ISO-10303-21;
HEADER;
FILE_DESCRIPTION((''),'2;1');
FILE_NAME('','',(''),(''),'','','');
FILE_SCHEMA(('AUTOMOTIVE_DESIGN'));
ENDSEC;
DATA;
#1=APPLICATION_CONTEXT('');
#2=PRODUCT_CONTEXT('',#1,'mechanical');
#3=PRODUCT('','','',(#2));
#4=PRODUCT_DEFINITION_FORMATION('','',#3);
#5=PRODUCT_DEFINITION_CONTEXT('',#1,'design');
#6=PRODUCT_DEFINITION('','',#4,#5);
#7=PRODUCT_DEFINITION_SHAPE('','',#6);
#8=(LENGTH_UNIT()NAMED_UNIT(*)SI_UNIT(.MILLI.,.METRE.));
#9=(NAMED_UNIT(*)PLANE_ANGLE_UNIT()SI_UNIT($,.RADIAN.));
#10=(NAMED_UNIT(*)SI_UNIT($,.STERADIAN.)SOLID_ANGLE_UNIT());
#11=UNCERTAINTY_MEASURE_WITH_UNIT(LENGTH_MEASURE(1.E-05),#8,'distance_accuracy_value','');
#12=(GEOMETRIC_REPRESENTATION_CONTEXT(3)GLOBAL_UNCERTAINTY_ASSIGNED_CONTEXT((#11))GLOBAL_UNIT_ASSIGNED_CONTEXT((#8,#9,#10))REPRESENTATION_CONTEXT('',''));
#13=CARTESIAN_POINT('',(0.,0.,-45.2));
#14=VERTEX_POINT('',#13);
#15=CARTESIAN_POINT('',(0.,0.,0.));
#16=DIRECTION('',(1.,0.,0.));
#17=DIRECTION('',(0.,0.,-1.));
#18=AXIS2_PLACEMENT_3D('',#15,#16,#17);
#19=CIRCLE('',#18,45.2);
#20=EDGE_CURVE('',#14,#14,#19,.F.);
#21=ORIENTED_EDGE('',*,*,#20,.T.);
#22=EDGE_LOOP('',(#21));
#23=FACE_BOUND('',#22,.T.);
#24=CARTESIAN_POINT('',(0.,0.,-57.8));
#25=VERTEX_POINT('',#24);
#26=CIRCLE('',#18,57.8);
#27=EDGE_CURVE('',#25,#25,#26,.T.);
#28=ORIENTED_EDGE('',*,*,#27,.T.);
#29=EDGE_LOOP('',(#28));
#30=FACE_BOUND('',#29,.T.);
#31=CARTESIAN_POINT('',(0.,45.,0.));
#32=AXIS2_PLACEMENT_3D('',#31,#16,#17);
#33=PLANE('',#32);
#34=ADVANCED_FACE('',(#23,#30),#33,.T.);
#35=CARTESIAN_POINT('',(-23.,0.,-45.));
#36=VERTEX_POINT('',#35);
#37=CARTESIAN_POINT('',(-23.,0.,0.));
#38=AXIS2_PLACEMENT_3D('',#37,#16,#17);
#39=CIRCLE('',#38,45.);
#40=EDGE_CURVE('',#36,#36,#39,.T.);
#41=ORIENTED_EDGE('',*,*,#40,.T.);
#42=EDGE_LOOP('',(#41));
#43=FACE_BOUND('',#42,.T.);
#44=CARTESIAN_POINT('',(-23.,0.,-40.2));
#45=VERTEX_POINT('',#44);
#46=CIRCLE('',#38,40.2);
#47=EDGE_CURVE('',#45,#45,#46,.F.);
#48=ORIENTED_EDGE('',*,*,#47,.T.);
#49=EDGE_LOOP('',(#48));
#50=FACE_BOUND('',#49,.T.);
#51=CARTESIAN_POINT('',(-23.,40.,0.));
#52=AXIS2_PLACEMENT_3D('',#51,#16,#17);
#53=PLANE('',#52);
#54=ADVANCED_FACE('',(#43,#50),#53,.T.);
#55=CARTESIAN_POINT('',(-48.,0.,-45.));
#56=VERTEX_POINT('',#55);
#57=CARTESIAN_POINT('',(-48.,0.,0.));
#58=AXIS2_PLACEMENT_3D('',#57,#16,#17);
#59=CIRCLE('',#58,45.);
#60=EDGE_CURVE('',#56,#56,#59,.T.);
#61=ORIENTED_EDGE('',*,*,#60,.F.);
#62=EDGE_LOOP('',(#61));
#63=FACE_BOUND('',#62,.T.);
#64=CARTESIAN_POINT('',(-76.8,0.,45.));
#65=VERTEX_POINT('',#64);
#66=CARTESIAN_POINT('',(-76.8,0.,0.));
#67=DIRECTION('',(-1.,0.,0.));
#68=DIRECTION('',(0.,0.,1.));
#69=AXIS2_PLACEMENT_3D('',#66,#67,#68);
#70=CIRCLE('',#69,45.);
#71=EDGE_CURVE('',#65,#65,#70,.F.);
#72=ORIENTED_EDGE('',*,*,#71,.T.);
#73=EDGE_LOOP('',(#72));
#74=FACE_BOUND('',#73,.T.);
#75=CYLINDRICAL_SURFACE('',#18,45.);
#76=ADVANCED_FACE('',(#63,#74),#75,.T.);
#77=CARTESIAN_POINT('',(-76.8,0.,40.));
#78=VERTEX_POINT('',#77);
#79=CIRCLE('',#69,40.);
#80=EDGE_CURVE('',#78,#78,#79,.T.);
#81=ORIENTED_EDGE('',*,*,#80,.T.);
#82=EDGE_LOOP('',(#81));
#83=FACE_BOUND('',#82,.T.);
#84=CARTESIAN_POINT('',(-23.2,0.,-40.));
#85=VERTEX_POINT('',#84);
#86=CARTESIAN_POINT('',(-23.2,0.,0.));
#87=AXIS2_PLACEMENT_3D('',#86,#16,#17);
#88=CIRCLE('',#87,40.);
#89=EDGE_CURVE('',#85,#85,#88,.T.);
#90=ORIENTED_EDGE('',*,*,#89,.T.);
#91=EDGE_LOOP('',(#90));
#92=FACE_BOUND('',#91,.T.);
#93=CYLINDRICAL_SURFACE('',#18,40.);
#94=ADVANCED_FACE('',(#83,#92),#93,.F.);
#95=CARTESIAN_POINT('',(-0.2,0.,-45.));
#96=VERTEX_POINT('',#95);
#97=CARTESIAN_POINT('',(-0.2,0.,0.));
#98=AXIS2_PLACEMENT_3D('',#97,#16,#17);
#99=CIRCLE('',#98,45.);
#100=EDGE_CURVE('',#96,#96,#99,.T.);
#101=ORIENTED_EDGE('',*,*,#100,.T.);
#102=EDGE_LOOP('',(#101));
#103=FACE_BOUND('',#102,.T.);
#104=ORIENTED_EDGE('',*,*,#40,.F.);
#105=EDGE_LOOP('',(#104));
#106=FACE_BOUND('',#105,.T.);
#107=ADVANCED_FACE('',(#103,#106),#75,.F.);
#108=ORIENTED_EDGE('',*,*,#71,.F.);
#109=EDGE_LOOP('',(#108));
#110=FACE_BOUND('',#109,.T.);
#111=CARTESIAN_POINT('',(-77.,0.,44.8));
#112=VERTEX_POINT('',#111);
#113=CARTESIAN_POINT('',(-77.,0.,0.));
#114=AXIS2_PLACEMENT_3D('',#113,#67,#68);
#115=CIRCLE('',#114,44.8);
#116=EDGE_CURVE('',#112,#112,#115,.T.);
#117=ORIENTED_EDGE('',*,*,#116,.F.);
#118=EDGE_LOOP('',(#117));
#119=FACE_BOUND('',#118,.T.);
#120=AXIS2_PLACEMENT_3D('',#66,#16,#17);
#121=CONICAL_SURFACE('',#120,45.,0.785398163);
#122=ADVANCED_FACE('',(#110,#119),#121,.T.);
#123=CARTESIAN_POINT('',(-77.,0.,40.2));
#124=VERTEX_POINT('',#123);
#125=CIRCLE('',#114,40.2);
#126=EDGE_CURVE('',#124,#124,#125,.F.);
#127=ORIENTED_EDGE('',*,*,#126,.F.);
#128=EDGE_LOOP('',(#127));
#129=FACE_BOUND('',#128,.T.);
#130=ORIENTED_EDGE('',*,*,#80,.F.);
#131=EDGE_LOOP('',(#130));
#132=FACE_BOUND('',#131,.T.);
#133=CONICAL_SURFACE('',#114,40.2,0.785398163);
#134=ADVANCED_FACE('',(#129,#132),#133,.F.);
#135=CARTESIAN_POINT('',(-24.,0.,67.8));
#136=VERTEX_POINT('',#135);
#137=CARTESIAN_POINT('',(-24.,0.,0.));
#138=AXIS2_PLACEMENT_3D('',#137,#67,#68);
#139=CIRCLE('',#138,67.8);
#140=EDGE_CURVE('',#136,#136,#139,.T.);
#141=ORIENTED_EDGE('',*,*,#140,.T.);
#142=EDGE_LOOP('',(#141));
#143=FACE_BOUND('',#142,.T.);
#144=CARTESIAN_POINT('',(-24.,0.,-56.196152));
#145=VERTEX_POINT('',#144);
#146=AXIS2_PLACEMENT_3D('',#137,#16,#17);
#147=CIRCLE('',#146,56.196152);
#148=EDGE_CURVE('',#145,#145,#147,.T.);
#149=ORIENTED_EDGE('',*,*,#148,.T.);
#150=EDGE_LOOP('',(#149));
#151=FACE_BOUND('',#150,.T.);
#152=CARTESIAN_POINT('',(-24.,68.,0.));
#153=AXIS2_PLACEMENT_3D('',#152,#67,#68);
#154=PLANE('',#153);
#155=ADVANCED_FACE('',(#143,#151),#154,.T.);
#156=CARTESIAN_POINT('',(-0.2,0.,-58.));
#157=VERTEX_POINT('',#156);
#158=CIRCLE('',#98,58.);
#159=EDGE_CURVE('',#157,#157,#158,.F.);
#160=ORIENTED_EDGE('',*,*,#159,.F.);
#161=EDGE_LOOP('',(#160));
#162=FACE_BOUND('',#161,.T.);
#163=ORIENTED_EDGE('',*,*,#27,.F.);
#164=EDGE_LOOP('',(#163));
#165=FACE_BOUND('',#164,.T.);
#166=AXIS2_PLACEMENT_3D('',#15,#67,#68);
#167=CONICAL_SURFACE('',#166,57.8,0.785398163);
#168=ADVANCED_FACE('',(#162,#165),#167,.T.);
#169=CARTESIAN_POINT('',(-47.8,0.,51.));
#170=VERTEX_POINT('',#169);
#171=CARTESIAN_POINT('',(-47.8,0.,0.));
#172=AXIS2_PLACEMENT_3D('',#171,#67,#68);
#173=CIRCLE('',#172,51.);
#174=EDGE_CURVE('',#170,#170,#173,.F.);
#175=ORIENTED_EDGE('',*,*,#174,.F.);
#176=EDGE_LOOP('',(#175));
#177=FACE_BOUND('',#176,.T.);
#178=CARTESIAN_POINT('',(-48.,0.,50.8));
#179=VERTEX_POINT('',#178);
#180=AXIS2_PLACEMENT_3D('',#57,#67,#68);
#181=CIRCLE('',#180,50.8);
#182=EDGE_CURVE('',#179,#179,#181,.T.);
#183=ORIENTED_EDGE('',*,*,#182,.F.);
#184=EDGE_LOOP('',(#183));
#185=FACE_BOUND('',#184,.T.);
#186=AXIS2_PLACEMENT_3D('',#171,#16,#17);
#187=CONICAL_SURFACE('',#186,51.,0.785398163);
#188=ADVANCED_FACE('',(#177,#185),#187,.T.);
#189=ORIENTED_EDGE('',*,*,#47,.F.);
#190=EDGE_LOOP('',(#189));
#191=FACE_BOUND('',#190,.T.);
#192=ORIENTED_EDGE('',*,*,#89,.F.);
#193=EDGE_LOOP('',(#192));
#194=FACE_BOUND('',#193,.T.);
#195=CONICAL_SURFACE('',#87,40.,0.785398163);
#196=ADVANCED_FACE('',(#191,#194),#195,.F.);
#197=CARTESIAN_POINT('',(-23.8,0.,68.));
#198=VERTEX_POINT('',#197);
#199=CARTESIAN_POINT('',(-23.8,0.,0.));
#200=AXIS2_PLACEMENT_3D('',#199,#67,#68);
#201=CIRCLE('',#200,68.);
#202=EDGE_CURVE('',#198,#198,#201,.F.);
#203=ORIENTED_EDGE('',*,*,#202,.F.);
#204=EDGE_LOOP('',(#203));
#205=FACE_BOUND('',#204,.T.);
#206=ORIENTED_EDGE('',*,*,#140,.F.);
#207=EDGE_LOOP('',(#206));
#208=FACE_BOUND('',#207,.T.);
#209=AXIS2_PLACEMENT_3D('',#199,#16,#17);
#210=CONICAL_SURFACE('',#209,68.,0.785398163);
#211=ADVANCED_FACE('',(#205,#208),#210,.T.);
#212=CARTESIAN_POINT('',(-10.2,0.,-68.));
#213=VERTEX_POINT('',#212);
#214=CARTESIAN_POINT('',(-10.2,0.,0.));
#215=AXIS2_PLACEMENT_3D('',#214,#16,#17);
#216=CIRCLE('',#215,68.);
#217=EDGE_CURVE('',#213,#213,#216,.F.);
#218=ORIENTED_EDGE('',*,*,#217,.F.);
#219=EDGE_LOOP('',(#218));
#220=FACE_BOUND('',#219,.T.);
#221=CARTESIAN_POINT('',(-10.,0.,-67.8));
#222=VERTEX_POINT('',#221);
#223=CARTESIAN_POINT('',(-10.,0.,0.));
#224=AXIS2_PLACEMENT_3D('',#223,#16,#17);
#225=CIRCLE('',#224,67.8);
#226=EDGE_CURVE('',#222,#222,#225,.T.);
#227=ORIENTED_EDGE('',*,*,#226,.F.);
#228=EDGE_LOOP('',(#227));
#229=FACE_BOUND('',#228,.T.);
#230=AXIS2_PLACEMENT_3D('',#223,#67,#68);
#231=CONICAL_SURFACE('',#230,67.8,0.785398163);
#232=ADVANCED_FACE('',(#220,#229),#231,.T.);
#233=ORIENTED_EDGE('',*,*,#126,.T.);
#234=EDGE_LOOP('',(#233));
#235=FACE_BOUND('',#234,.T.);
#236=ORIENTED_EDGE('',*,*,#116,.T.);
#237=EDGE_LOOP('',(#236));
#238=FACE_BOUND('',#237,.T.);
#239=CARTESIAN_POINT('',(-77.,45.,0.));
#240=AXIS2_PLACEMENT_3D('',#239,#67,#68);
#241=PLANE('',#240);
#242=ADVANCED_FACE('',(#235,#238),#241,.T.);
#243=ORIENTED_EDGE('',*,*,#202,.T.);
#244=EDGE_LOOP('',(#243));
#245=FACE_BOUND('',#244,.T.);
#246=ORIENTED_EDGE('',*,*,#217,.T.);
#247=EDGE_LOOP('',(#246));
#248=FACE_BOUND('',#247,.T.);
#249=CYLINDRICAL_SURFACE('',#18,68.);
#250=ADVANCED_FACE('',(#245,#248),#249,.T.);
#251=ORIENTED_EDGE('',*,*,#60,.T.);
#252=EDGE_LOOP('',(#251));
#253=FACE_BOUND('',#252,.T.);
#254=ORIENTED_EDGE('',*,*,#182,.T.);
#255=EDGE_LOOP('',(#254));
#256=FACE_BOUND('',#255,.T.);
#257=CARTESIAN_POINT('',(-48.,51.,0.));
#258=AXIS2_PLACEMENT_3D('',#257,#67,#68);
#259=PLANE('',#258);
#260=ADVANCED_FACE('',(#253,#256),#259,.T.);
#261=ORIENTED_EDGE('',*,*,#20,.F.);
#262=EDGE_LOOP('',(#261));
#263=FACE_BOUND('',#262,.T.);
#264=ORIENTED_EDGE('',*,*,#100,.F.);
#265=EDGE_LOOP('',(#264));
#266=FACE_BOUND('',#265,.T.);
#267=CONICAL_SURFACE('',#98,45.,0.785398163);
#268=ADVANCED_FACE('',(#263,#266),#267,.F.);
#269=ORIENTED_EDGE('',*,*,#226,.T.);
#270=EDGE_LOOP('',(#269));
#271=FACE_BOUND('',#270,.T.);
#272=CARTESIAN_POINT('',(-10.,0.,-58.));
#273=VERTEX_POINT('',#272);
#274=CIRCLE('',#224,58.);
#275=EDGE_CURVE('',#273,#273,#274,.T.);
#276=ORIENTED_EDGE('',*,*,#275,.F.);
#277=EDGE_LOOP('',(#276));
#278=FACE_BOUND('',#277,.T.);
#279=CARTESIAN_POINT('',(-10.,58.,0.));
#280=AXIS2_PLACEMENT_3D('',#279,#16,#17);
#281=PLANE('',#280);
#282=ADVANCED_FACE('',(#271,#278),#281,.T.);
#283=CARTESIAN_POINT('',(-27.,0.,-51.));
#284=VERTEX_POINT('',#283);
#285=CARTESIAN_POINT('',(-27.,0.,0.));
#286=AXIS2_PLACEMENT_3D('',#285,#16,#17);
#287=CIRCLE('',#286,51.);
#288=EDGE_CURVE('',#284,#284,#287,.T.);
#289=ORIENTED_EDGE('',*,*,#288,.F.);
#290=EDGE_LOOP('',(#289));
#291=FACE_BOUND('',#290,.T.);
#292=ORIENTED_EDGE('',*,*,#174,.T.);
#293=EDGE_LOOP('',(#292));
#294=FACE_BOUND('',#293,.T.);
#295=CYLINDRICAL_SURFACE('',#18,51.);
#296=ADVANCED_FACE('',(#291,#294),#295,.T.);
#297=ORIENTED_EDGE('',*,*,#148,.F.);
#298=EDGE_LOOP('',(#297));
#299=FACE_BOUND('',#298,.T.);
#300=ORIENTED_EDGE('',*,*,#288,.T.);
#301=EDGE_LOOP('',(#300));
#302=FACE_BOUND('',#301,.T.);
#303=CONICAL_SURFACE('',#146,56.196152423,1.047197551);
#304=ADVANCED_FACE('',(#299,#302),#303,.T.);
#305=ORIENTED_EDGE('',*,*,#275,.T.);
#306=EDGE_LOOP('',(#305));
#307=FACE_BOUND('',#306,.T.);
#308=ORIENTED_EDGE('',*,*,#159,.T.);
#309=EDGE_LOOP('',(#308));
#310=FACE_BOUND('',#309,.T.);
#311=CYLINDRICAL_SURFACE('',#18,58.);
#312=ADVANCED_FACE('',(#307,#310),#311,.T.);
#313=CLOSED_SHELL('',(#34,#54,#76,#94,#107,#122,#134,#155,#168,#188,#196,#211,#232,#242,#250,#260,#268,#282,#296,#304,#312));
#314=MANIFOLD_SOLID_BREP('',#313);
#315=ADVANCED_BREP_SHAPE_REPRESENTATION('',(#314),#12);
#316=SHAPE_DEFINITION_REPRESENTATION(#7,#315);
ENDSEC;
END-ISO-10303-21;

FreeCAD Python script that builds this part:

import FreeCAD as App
import Part
import Sketcher
from FreeCAD import Vector
Q = App.Units.Quantity


def edges_at(feature, points):
    """Names of the edges that pass closest to the given points."""
    edges = feature.Shape.Edges
    near = lambda p: min(range(len(edges)), key=lambda i: edges[i].distToShape(Part.Vertex(*p))[0])
    return sorted({f"Edge{near(p) + 1}" for p in points})


def add_polygon(sketch, points):
    """Adds a closed chain of lines whose ends are joined by coincident constraints."""
    first, n = sketch.GeometryCount, len(points)
    for a, b in zip(points, points[1:] + points[:1]):
        sketch.addGeometry(Part.LineSegment(App.Vector(*a, 0), App.Vector(*b, 0)), False)
    for i in range(n):
        sketch.addConstraint(Sketcher.Constraint("Coincident", first + i, 2, first + (i + 1) % n, 1))

doc = App.newDocument("Part")
params = doc.addObject("Spreadsheet::Sheet", "Params")
for row, (alias, value) in enumerate([
    ("sketch1_width", "10 mm"),
    ("sketch1_width2", "14 mm"),
    ("sketch1_width3", "21 mm"),
    ("sketch1_width4", "29 mm"),
    ("sketch1_width5", "54 mm"),
    ("revolution_angle", "360 deg"),
    ("chamfer_size", "0.2 mm"),
    ("chamfer2_size", "0.2 mm"),
], start=1):
    params.set(f"A{row}", alias)
    params.set(f"B{row}", "=" + value)
    params.setAlias(f"B{row}", alias)

body = doc.addObject("PartDesign::Body", "Body")

sketch1 = body.newObject("Sketcher::SketchObject", "Sketch")
sketch1.AttachmentSupport = (doc.getObject("XY_Plane"), [""])
sketch1.MapMode = "FlatFace"
add_polygon(sketch1, [(0, 45), (0, 58), (-10, 58), (-10, 68), (-24, 68), (-24, 56), (-27, 51), (-48, 51), (-48, 45), (-77, 45), (-77, 40), (-23, 40), (-23, 45)])
sketch1.addConstraint(Sketcher.Constraint("Vertical", 0))
sketch1.addConstraint(Sketcher.Constraint("Horizontal", 1))
sketch1.addConstraint(Sketcher.Constraint("Vertical", 2))
sketch1.addConstraint(Sketcher.Constraint("Horizontal", 3))
sketch1.addConstraint(Sketcher.Constraint("Vertical", 4))
sketch1.addConstraint(Sketcher.Constraint("Horizontal", 6))
sketch1.addConstraint(Sketcher.Constraint("Vertical", 7))
sketch1.addConstraint(Sketcher.Constraint("Horizontal", 8))
sketch1.addConstraint(Sketcher.Constraint("Vertical", 9))
sketch1.addConstraint(Sketcher.Constraint("Horizontal", 10))
sketch1.addConstraint(Sketcher.Constraint("Vertical", 11))
sketch1.addConstraint(Sketcher.Constraint("Horizontal", 12))
sketch1.addConstraint(Sketcher.Constraint("PointOnObject", 0, 2, -2))
sketch1.addConstraint(Sketcher.Constraint("Horizontal", 8, 2, 11, 2))
sketch1.addConstraint(Sketcher.Constraint("Equal", 1, 2))
sketch1.addConstraint(Sketcher.Constraint("DistanceX", 1, 2, 1, 1, Q("10 mm")))
sketch1.addConstraint(Sketcher.Constraint("DistanceX", 3, 2, 3, 1, Q("14 mm")))
sketch1.addConstraint(Sketcher.Constraint("DistanceX", 6, 2, 6, 1, Q("21 mm")))
sketch1.addConstraint(Sketcher.Constraint("DistanceX", 8, 2, 8, 1, Q("29 mm")))
sketch1.addConstraint(Sketcher.Constraint("DistanceX", 10, 1, 10, 2, Q("54 mm")))
sketch1.addConstraint(Sketcher.Constraint("DistanceX", 12, 1, 12, 2, Q("23 mm")))
sketch1.addConstraint(Sketcher.Constraint("DistanceY", 0, 1, 0, 2, Q("13 mm")))
sketch1.addConstraint(Sketcher.Constraint("DistanceY", 7, 2, 7, 1, Q("6 mm")))
sketch1.addConstraint(Sketcher.Constraint("DistanceY", 9, 2, 9, 1, Q("5 mm")))
sketch1.addConstraint(Sketcher.Constraint("Angle", 5, Q("-120 deg")))
sketch1.addConstraint(Sketcher.Constraint("DistanceY", -1, 1, 0, 2, Q("58 mm")))
sketch1.setExpression("Constraints[28]", "Params.sketch1_width")
sketch1.setExpression("Constraints[29]", "Params.sketch1_width2")
sketch1.setExpression("Constraints[30]", "Params.sketch1_width3")
sketch1.setExpression("Constraints[31]", "Params.sketch1_width4")
sketch1.setExpression("Constraints[32]", "Params.sketch1_width5")
revolution = body.newObject("PartDesign::Revolution", "Revolution")
revolution.Profile = sketch1
revolution.ReferenceAxis = (sketch1, ["H_Axis"])
revolution.setExpression("Angle", "Params.revolution_angle")
doc.recompute()

chamfer = body.newObject("PartDesign::Chamfer", "Chamfer")
chamfer.Base = (revolution, edges_at(revolution, [
    (-48, 0, 51),
    (-77, 0, 45),
    (-77, 0, 40),
    (0, 0, 45),
    (0, 0, 58),
    (-10, 0, 68),
    (-24, 0, 68),
]))
chamfer.setExpression("Size", "Params.chamfer_size")
doc.recompute()

chamfer2 = body.newObject("PartDesign::Chamfer", "Chamfer001")
chamfer2.Base = (chamfer, edges_at(chamfer, [(-23, 0, 40)]))
chamfer2.setExpression("Size", "Params.chamfer2_size")

doc.recompute()
